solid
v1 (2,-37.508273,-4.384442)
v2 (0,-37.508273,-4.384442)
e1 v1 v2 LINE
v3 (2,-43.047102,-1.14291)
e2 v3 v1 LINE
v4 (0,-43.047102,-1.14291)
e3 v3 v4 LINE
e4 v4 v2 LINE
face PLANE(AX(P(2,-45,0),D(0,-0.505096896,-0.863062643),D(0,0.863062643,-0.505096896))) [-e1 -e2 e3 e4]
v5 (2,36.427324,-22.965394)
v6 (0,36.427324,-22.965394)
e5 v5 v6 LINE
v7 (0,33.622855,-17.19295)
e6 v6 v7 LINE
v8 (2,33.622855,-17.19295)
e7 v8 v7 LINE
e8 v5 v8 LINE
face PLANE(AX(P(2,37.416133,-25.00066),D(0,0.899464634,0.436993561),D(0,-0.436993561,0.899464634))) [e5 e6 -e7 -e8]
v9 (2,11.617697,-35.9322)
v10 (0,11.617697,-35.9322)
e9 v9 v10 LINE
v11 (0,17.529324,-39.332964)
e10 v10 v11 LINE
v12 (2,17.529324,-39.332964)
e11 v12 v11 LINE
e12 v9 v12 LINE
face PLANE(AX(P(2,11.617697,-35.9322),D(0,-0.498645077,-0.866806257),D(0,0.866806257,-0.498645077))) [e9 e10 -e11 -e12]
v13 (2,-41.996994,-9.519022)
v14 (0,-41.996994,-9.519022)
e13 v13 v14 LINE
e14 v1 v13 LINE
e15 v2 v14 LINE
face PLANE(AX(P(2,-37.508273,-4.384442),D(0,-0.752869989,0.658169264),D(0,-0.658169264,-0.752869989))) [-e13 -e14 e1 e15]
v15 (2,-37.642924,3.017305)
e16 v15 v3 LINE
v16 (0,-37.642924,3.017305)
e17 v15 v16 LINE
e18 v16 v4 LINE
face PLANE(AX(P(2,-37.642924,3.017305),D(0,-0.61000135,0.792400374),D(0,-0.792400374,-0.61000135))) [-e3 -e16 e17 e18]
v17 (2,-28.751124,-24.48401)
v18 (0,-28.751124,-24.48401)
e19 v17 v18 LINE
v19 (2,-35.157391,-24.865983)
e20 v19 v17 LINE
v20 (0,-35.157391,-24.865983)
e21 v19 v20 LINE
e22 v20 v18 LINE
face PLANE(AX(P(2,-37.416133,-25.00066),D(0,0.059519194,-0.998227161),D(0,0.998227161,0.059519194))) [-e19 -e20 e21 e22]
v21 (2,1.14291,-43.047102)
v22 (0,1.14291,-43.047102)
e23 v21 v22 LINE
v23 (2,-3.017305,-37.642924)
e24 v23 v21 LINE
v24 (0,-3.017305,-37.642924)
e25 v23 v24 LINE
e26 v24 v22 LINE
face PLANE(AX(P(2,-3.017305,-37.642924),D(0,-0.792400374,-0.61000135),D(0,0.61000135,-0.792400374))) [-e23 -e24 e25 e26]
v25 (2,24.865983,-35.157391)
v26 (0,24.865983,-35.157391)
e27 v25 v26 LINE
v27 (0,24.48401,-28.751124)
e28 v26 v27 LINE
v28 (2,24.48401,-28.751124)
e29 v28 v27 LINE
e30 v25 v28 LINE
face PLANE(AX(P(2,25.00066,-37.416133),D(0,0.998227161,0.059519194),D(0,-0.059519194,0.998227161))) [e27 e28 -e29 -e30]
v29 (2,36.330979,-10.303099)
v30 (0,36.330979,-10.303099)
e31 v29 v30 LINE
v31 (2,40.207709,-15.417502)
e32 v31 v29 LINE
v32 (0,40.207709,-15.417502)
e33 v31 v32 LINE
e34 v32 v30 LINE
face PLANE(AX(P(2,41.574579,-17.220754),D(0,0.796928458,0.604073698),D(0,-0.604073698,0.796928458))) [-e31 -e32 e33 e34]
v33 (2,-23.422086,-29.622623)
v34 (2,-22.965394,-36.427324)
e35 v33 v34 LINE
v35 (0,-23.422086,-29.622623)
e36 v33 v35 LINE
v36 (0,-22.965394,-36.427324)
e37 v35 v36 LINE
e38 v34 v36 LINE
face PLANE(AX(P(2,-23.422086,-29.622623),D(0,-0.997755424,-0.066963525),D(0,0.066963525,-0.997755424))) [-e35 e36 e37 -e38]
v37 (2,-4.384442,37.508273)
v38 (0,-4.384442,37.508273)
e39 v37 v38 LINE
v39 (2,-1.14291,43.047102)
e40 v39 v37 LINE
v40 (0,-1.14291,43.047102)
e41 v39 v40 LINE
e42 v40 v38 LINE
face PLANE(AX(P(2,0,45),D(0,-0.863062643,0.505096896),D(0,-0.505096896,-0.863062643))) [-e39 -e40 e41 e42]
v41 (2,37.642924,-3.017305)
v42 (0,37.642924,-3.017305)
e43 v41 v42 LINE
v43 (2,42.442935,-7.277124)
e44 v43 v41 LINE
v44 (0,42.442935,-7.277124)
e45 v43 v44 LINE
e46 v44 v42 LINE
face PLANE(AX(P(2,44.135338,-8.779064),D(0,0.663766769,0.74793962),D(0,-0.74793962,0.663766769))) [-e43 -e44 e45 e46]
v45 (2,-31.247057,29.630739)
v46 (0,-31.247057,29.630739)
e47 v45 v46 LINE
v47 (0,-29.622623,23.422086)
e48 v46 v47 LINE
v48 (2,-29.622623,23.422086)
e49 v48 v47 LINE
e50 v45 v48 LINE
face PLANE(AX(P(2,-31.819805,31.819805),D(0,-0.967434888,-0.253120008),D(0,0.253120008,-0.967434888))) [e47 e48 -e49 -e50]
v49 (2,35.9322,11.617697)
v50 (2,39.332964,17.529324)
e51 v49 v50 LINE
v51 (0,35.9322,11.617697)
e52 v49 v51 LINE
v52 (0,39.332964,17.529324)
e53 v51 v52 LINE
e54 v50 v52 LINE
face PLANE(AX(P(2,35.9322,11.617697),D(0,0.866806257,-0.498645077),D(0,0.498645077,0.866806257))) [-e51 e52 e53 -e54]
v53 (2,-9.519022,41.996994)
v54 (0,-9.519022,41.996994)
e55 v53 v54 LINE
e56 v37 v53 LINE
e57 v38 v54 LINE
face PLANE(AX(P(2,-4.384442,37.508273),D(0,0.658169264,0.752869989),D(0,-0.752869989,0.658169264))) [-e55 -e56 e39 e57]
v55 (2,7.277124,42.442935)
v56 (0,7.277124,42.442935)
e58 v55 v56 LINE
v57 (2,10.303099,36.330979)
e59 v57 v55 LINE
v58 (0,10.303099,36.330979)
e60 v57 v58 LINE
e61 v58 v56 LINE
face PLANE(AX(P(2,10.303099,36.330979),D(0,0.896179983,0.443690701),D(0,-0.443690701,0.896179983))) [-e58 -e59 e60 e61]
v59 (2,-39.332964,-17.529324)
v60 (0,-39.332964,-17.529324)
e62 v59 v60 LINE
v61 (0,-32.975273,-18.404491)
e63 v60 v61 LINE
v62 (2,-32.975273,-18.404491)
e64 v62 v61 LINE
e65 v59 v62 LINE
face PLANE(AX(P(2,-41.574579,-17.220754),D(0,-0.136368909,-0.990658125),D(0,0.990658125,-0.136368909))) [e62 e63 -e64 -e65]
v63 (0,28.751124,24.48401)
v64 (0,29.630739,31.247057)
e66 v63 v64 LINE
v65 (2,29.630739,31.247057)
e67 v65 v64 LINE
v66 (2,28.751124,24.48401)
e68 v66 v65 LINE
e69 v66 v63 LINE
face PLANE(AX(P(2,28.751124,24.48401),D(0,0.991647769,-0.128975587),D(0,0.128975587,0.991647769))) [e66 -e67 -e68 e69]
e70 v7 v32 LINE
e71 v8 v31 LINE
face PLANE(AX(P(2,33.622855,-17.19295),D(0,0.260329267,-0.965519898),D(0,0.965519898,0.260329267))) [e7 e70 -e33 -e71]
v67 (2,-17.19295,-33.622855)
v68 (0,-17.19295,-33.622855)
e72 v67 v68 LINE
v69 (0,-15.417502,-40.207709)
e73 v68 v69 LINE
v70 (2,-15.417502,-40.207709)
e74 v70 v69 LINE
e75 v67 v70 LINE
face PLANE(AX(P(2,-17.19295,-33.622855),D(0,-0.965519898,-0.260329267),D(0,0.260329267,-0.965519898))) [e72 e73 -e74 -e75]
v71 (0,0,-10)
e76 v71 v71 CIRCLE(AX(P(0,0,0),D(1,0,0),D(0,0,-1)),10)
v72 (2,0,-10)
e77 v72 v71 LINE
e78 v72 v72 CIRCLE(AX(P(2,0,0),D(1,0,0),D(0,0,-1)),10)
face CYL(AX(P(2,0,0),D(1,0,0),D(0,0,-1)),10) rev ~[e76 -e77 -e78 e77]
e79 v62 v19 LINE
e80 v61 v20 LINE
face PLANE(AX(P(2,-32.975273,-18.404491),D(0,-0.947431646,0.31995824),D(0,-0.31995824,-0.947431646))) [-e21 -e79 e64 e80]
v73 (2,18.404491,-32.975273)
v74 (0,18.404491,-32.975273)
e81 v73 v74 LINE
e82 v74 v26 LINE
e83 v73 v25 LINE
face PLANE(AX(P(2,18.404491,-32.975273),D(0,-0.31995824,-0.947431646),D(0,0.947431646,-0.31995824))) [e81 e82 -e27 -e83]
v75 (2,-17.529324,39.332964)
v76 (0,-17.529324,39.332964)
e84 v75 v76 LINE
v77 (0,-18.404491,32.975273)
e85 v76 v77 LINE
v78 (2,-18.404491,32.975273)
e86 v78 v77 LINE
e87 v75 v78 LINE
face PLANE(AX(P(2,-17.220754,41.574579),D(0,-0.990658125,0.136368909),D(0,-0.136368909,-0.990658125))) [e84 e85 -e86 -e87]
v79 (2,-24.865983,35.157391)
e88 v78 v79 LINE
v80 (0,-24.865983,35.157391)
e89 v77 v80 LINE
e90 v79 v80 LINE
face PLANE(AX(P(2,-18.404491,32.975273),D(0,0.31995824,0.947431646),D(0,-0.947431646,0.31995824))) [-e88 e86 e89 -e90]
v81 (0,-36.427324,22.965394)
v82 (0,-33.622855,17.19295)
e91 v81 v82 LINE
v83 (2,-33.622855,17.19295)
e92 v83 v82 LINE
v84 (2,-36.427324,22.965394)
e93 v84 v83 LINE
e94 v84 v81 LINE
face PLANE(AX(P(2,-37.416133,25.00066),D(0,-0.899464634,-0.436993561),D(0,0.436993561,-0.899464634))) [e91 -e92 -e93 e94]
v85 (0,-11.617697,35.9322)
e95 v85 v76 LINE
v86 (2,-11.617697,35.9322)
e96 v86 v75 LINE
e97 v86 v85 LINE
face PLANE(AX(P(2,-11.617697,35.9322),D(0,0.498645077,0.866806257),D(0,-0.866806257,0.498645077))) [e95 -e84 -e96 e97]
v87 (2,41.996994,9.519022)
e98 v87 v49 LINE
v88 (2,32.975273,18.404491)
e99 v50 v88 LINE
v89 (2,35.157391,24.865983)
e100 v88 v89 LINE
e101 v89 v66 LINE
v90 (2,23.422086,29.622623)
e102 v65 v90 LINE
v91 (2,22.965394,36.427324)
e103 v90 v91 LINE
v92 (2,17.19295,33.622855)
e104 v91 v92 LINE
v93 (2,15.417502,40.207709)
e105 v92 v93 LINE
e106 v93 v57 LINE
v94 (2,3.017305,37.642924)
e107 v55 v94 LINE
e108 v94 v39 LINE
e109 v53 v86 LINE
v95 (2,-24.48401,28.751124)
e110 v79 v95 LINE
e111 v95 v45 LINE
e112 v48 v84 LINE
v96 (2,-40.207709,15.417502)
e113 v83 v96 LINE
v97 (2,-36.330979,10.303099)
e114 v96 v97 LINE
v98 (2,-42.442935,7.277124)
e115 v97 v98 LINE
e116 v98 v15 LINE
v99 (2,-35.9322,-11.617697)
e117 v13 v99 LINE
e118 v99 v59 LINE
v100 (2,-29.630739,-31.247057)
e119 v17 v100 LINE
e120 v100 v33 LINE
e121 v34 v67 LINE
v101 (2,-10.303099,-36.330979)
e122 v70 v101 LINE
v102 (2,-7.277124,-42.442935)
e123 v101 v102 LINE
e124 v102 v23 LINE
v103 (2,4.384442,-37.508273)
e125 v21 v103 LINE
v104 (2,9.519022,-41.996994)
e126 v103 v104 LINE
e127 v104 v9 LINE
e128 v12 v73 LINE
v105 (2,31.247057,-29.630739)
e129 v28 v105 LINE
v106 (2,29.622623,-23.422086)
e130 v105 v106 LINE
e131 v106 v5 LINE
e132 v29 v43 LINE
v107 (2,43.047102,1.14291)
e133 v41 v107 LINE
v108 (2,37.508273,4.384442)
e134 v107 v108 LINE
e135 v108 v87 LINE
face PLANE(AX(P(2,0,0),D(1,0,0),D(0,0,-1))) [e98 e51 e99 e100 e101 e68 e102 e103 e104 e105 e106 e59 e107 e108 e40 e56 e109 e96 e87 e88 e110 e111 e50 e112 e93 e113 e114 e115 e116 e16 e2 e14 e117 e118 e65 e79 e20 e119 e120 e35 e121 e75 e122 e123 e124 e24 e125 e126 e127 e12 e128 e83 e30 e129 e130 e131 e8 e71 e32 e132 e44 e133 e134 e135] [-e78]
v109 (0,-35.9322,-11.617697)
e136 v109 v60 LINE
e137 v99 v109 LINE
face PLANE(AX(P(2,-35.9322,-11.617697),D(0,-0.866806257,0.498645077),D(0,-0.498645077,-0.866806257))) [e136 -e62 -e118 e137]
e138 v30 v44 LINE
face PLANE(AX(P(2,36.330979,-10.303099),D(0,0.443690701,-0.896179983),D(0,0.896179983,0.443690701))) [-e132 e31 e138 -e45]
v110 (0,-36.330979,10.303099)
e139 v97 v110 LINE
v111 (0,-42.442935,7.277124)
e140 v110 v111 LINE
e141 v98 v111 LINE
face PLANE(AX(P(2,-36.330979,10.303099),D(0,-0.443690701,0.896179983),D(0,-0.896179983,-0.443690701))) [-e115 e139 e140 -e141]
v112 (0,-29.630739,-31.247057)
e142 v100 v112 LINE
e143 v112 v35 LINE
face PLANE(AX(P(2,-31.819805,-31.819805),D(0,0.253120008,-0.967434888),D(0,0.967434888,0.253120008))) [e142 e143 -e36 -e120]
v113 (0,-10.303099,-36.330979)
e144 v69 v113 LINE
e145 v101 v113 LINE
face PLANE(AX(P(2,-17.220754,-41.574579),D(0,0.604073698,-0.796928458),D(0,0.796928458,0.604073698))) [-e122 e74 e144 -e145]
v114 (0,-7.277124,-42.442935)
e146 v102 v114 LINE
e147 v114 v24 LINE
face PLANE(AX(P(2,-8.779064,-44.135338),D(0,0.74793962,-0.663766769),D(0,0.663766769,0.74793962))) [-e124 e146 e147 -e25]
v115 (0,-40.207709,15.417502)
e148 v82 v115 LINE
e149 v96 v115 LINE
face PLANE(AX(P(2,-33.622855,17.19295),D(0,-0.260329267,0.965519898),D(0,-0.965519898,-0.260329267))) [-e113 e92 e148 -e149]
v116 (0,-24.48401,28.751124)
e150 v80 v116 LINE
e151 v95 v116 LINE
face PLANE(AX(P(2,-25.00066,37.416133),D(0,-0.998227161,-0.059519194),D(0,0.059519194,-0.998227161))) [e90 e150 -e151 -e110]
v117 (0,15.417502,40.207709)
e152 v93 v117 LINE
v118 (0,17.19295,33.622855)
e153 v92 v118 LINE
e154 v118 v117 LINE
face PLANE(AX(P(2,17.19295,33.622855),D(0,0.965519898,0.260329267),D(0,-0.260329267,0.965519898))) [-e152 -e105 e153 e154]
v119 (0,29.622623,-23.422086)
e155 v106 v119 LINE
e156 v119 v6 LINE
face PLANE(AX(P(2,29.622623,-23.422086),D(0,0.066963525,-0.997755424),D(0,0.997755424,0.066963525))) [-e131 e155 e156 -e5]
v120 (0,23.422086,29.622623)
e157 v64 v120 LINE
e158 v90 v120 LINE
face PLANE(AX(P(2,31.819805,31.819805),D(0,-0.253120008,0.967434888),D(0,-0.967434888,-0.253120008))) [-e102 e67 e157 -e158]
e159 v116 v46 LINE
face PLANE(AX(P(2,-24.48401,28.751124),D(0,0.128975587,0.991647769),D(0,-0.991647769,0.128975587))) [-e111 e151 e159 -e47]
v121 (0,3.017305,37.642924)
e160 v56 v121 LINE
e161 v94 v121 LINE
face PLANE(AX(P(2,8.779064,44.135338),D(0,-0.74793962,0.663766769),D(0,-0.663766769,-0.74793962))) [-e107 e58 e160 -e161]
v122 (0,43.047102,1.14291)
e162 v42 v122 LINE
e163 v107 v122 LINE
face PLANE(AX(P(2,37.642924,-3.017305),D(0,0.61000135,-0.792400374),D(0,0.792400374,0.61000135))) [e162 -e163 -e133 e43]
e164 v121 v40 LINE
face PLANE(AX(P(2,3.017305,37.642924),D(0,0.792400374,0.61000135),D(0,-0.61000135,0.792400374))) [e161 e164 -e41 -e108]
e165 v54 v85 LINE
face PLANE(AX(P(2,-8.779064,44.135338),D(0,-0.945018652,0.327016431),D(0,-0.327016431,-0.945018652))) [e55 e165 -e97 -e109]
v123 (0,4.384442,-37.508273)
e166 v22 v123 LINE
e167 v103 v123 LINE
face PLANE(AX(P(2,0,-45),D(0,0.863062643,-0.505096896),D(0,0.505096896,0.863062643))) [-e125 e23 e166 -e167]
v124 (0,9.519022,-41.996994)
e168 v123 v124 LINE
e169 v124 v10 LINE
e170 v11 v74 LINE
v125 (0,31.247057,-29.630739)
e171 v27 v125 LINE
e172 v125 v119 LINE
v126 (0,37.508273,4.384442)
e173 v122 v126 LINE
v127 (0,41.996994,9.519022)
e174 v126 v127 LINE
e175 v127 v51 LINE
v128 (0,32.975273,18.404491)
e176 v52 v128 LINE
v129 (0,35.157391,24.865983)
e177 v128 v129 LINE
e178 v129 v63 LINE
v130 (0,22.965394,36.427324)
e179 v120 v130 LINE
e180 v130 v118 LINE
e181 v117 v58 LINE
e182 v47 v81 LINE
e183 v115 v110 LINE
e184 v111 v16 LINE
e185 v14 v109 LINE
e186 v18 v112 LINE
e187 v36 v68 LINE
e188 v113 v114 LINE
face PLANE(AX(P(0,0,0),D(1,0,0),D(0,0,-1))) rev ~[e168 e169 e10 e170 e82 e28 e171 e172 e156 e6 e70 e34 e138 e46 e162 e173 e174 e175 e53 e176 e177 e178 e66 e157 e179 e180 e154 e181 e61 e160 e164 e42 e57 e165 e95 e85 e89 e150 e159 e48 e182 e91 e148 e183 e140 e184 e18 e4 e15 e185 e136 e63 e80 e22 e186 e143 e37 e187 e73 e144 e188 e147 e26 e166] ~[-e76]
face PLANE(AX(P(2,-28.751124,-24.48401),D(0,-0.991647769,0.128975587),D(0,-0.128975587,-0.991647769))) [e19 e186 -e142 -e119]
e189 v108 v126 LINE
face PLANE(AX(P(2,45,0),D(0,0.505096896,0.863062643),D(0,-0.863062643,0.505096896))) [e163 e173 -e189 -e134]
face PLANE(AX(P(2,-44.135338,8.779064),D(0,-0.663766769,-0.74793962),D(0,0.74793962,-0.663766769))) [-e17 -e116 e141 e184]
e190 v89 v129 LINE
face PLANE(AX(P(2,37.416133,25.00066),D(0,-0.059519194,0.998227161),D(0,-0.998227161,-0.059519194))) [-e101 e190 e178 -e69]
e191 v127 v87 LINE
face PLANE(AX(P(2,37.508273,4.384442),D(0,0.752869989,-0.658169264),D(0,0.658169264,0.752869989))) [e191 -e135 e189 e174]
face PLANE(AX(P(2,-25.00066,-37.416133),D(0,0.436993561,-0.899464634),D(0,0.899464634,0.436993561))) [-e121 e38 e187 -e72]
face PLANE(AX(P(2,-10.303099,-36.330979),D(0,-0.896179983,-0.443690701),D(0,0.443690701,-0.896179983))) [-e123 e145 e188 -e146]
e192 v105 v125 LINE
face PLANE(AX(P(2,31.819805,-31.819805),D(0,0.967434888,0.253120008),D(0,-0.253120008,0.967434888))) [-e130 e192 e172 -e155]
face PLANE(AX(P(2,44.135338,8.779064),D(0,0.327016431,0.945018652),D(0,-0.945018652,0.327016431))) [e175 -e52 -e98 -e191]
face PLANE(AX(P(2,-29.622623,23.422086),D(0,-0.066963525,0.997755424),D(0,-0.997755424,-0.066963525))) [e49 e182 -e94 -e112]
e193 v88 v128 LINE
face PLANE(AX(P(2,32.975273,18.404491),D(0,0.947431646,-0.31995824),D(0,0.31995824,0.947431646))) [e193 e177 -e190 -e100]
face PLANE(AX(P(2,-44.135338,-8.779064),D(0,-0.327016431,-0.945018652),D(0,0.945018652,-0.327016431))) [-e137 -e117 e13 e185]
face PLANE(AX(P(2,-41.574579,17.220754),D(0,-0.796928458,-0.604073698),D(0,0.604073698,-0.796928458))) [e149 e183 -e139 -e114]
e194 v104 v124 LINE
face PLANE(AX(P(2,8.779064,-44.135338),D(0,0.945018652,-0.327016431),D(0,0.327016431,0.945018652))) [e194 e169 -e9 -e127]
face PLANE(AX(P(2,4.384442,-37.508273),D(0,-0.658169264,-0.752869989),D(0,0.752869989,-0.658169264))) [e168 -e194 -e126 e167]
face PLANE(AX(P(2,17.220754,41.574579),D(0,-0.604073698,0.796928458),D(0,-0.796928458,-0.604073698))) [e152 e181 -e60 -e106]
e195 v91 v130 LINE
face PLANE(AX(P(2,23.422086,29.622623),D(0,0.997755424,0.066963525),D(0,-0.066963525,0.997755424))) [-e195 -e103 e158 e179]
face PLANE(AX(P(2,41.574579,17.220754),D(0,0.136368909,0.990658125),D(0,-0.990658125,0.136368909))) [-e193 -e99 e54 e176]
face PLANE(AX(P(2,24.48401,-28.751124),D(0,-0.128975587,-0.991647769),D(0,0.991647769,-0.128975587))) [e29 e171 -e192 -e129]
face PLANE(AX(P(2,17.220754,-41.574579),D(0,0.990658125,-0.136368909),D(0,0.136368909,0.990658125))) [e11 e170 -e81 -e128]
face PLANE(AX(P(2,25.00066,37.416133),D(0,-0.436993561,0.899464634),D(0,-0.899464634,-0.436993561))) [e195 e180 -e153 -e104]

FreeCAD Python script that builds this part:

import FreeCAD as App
import Part
import Sketcher
from FreeCAD import Vector

doc = App.newDocument("Part")
body = doc.addObject("PartDesign::Body", "Body")

# Sketch on YZ plane
sketch1 = body.newObject("Sketcher::SketchObject", "Sketch")
sketch1.AttachmentSupport = (doc.getObject("YZ_Plane"), [""])
sketch1.MapMode = "FlatFace"
sketch1.addGeometry(Part.Circle(Vector(0, 0, 0), Vector(0, 0, 1), 45), False)
sketch1.addConstraint([
    Sketcher.Constraint("Coincident", 0, 3, -1, 1),
    Sketcher.Constraint("Diameter", 0, 90.0),
])
pad1 = body.newObject("PartDesign::Pad", "Pad")
pad1.Profile = sketch1
pad1.Length = 2

# Sketch on YZ plane
sketch2 = body.newObject("Sketcher::SketchObject", "Sketch001")
sketch2.AttachmentSupport = (doc.getObject("YZ_Plane"), [""])
sketch2.MapMode = "FlatFace"
sketch2.AttachmentOffset = App.Placement(Vector(0, 0, 2), App.Rotation())
sketch2.addGeometry([
    Part.LineSegment(Vector(45, 0, 0), Vector(235, -111, 0)),  # 0
    Part.LineSegment(Vector(235, -111, 0), Vector(669, -41, 0)),  # 1
    Part.LineSegment(Vector(669, -41, 0), Vector(622, 247, 0)),  # 2
    Part.LineSegment(Vector(622, 247, 0), Vector(188, 177, 0)),  # 3
    Part.LineSegment(Vector(188, 177, 0), Vector(44, 11, 0)),  # 4
    Part.LineSegment(Vector(44, 11, 0), Vector(38, 4, 0)),  # 5
    Part.LineSegment(Vector(38, 4, 0), Vector(45, 0, 0)),  # 6
], False)
sketch2.addConstraint([
    Sketcher.Constraint("Coincident", 0, 2, 1, 1),
    Sketcher.Constraint("Coincident", 1, 2, 2, 1),
    Sketcher.Constraint("Coincident", 2, 2, 3, 1),
    Sketcher.Constraint("Coincident", 3, 2, 4, 1),
    Sketcher.Constraint("Coincident", 4, 2, 5, 1),
    Sketcher.Constraint("Coincident", 5, 2, 6, 1),
    Sketcher.Constraint("Coincident", 6, 2, 0, 1),
    Sketcher.Constraint("PointOnObject", 6, 2, -1),
    Sketcher.Constraint("Perpendicular", 1, 2),
    Sketcher.Constraint("Perpendicular", 2, 3),
    Sketcher.Constraint("Parallel", 4, 5),
    Sketcher.Constraint("Parallel", 0, 6),
    Sketcher.Constraint("Equal", 1, 3),
    Sketcher.Constraint("Equal", 0, 4),
    Sketcher.Constraint("DistanceX", -1, 1, 6, 2, 45.0),
    Sketcher.Constraint("DistanceX", -1, 1, 3, 2, 188.275881),
    Sketcher.Constraint("DistanceY", -1, 1, 4, 2, 11.303681),
    Sketcher.Constraint("DistanceY", -1, 1, 5, 2, 4.384442),
    Sketcher.Constraint("DistanceY", 0, 2, 1, 2, 70.110149),
    Sketcher.Constraint("DistanceX", 2, 2, 1, 2, 46.494931),
    Sketcher.Constraint("DistanceY", 1, 2, 2, 2, 287.906311),
])
pocket1 = body.newObject("PartDesign::Pocket", "Pocket")
pocket1.Profile = sketch2
pocket1.Length = 129.342059
pocket1.Midplane = True
doc.recompute()

polarpattern = body.newObject("PartDesign::PolarPattern", "PolarPattern")
polarpattern.Originals = [pocket1]
polarpattern.Axis = (doc.getObject("X_Axis"), [""])
polarpattern.Angle = 360
polarpattern.Occurrences = 32
body.Tip = polarpattern

# Sketch on YZ plane
sketch3 = body.newObject("Sketcher::SketchObject", "Sketch002")
sketch3.AttachmentSupport = (doc.getObject("YZ_Plane"), [""])
sketch3.MapMode = "FlatFace"
sketch3.AttachmentOffset = App.Placement(Vector(0, 0, 2), App.Rotation())
sketch3.addGeometry(Part.Circle(Vector(0, 0, 0), Vector(0, 0, 1), 10), False)
sketch3.addConstraint([
    Sketcher.Constraint("Coincident", 0, 3, -1, 1),
    Sketcher.Constraint("Diameter", 0, 20.0),
])
pocket2 = body.newObject("PartDesign::Pocket", "Pocket001")
pocket2.Profile = sketch3
pocket2.Length = 10

doc.recompute()
